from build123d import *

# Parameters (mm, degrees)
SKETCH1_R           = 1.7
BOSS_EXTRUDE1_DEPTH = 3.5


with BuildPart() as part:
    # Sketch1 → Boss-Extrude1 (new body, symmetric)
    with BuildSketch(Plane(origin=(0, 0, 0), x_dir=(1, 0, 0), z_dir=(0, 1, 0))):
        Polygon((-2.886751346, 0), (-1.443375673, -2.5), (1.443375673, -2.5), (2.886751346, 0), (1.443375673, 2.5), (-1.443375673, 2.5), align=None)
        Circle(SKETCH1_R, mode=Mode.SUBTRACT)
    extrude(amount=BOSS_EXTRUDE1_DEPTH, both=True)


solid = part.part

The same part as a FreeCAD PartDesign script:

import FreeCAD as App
import Part
import Sketcher

V = App.Vector
Q = App.Units.Quantity

doc = App.newDocument("Part")
body = doc.addObject("PartDesign::Body", "Body")

sketch1 = body.newObject("Sketcher::SketchObject", "Sketch")
sketch1.AttachmentSupport = (doc.getObject("XZ_Plane"), [""])
sketch1.MapMode = "FlatFace"
sketch1.addGeometry([
    Part.LineSegment(V(-2.9, 0, 0), V(-1.4, 2.5, 0)),
    Part.LineSegment(V(-1.4, 2.5, 0), V(1.4, 2.5, 0)),
    Part.LineSegment(V(1.4, 2.5, 0), V(2.9, 0, 0)),
    Part.LineSegment(V(2.9, 0, 0), V(1.4, -2.5, 0)),
    Part.LineSegment(V(1.4, -2.5, 0), V(-1.4, -2.5, 0)),
    Part.LineSegment(V(-1.4, -2.5, 0), V(-2.9, 0, 0)),
    Part.Circle(V(0, 0, 0), V(0, 0, 1), 1.7),
], False)
sketch1.addConstraint([
    Sketcher.Constraint("Coincident", 0, 2, 1, 1),
    Sketcher.Constraint("Coincident", 1, 2, 2, 1),
    Sketcher.Constraint("Coincident", 2, 2, 3, 1),
    Sketcher.Constraint("Coincident", 3, 2, 4, 1),
    Sketcher.Constraint("Coincident", 4, 2, 5, 1),
    Sketcher.Constraint("Coincident", 5, 2, 0, 1),
    Sketcher.Constraint("Horizontal", 1),
    Sketcher.Constraint("Horizontal", 4),
    Sketcher.Constraint("Coincident", 6, 3, -1, 1),
    Sketcher.Constraint("Symmetric", 0, 2, 3, 2, -1, 1),
    Sketcher.Constraint("Symmetric", 2, 2, 5, 2, -1, 1),
    Sketcher.Constraint("PointOnObject", 2, 2, -1),
    Sketcher.Constraint("Parallel", 2, 5),
    Sketcher.Constraint("Vertical", 1, 2, 3, 2),
    Sketcher.Constraint("Diameter", 6, Q("3.4 mm")),
    Sketcher.Constraint("Angle", 0, Q("60 deg")),
    Sketcher.Constraint("DistanceY", 3, 2, 1, 2, Q("5 mm")),
    Sketcher.Constraint("DistanceX", 1, 1, 1, 2, Q("2.886751 mm")),
])
pad1 = body.newObject("PartDesign::Pad", "Pad")
pad1.Profile = sketch1
pad1.Length = 7
pad1.Midplane = True

doc.recompute()
